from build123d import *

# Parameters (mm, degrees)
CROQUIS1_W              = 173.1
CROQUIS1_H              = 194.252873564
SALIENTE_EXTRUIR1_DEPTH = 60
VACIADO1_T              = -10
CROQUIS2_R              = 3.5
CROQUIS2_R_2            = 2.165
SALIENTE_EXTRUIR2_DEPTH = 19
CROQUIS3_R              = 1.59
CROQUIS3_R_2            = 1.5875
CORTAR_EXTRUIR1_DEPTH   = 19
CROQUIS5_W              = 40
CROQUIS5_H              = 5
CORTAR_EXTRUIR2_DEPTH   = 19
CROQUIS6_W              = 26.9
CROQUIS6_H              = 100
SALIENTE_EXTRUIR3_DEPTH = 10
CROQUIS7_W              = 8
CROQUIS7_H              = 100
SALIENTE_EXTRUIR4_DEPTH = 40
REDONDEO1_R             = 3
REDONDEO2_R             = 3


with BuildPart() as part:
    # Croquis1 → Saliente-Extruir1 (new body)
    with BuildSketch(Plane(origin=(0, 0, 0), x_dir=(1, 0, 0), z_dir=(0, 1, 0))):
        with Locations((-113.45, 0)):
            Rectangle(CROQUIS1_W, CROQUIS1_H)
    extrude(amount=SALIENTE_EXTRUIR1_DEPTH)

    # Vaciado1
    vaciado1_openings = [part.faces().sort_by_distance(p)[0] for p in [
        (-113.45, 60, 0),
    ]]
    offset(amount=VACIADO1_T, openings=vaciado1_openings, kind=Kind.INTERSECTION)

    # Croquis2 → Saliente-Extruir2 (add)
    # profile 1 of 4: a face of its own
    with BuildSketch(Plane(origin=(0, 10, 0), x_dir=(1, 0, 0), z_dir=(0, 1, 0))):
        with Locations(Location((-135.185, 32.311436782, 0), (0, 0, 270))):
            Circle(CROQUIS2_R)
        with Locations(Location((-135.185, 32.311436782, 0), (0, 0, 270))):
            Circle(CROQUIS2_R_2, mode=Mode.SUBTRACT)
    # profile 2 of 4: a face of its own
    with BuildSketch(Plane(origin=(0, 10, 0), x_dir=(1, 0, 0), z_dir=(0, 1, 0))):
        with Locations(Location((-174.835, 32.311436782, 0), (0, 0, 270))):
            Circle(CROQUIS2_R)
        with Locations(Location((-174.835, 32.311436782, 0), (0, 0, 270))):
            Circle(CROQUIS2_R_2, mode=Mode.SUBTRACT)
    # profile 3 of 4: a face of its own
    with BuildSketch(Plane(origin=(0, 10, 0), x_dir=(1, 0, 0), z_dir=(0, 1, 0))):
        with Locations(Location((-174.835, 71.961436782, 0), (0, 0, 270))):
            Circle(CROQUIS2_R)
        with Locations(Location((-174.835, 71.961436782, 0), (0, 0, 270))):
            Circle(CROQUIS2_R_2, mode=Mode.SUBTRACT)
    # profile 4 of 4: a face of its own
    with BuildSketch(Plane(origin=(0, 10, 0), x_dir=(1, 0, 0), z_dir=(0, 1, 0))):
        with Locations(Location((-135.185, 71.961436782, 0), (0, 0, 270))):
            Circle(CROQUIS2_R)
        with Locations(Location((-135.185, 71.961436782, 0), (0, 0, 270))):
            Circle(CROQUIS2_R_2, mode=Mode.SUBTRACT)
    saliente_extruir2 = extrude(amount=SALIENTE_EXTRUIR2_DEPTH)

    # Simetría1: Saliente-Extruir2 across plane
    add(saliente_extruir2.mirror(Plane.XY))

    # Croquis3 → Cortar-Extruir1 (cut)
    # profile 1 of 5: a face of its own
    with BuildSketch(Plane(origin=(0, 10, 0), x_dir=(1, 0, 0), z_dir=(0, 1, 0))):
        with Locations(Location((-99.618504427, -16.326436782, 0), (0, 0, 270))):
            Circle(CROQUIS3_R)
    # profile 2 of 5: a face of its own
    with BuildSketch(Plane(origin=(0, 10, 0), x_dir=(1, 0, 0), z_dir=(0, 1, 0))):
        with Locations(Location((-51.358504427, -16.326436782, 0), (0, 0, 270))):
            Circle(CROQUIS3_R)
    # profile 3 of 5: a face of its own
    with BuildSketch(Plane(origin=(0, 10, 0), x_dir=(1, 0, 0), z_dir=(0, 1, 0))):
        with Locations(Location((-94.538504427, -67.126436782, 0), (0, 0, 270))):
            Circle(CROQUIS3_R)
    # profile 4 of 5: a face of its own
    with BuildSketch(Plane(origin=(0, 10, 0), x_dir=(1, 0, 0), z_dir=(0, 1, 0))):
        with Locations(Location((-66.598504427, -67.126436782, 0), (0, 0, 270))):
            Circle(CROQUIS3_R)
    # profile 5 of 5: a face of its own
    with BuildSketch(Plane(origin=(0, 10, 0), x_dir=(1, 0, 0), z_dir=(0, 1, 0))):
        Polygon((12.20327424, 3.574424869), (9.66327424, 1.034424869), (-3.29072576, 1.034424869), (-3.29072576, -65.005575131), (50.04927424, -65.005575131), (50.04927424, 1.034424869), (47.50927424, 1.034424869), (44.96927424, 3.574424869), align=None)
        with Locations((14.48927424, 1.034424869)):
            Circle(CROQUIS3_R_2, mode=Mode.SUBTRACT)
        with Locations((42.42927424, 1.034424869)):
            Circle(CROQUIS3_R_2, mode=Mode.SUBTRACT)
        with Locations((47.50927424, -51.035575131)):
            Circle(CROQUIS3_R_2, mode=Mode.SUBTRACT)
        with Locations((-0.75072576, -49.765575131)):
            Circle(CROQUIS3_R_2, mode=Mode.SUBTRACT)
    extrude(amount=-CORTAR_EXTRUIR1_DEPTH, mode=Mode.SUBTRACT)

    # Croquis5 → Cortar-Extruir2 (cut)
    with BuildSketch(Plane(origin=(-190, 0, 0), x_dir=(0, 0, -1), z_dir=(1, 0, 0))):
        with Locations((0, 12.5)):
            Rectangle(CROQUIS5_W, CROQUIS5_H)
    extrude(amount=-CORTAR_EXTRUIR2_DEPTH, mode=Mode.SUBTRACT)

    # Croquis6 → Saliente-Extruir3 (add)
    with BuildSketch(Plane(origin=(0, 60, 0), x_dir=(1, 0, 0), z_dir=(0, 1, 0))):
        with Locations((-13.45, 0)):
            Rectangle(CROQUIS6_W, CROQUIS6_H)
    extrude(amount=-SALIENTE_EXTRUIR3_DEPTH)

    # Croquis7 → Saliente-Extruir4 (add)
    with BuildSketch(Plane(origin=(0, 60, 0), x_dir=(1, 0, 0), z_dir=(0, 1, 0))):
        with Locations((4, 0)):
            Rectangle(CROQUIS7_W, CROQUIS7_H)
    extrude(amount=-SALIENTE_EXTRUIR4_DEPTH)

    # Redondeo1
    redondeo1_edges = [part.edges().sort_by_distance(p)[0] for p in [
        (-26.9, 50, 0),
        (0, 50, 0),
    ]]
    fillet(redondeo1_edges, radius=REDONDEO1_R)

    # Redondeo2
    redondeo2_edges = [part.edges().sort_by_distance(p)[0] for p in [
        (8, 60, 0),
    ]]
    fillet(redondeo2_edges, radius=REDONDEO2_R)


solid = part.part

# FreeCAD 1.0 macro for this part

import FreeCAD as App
import Part
import Sketcher


def edges_at(feature, points):
    """Names of the edges that pass closest to the given points."""
    edges = feature.Shape.Edges
    near = lambda p: min(range(len(edges)), key=lambda i: edges[i].distToShape(Part.Vertex(*p))[0])
    return sorted({f"Edge{near(p) + 1}" for p in points})


def faces_at(feature, points):
    """Names of the faces that lie closest to the given points."""
    faces = feature.Shape.Faces
    near = lambda p: min(range(len(faces)), key=lambda i: faces[i].distToShape(Part.Vertex(*p))[0])
    return sorted({f"Face{near(p) + 1}" for p in points})

doc = App.newDocument("Part")
body = doc.addObject("PartDesign::Body", "Body")

# Sketch on XZ plane
sketch1 = body.newObject("Sketcher::SketchObject", "Sketch")
sketch1.AttachmentSupport = (doc.getObject("XZ_Plane"), [""])
sketch1.MapMode = "FlatFace"
sketch1.addGeometry([
    Part.LineSegment(App.Vector(-200, -97, 0), App.Vector(-200, 97, 0)),
    Part.LineSegment(App.Vector(-200, 97, 0), App.Vector(-27, 97, 0)),
    Part.LineSegment(App.Vector(-27, 97, 0), App.Vector(-27, -97, 0)),
    Part.LineSegment(App.Vector(-27, -97, 0), App.Vector(-200, -97, 0)),
], False)
sketch1.addConstraint([
    Sketcher.Constraint("Coincident", 0, 2, 1, 1),
    Sketcher.Constraint("Coincident", 1, 2, 2, 1),
    Sketcher.Constraint("Coincident", 2, 2, 3, 1),
    Sketcher.Constraint("Coincident", 3, 2, 0, 1),
    Sketcher.Constraint("Vertical", 0),
    Sketcher.Constraint("Horizontal", 1),
    Sketcher.Constraint("Vertical", 2),
    Sketcher.Constraint("Horizontal", 3),
    Sketcher.Constraint("DistanceX", 1, 1, 1, 2, 173.1),
    Sketcher.Constraint("DistanceX", 0, 2, -1, 1, 200.0),
    Sketcher.Constraint("DistanceY", 0, 1, 0, 2, 194.252874),
    Sketcher.Constraint("DistanceY", -1, 1, 0, 2, 97.126437),
])
pad1 = body.newObject("PartDesign::Pad", "Pad")
pad1.Profile = sketch1
pad1.Length = 60
pad1.Reversed = True
doc.recompute()

thickness = body.newObject("PartDesign::Thickness", "Thickness")
thickness.Base = (pad1, faces_at(pad1, [(-113.45, 60, 0)]))
thickness.Value = 10
thickness.Reversed = True
thickness.Join = "Intersection"

# Sketch on XZ plane
sketch2 = body.newObject("Sketcher::SketchObject", "Sketch001")
sketch2.AttachmentSupport = (doc.getObject("XZ_Plane"), [""])
sketch2.MapMode = "FlatFace"
sketch2.AttachmentOffset = App.Placement(App.Vector(0, 0, -10), App.Rotation())
sketch2.addGeometry([
    Part.Circle(App.Vector(-135.2, -32.3, 0), App.Vector(0, 0, 1), 3.5),  # 0
    Part.Circle(App.Vector(-135.2, -32.3, 0), App.Vector(0, 0, 1), 2.2),  # 1
    Part.Circle(App.Vector(-174.8, -32.3, 0), App.Vector(0, 0, 1), 3.5),  # 2
    Part.Circle(App.Vector(-174.8, -32.3, 0), App.Vector(0, 0, 1), 2.2),  # 3
    Part.Circle(App.Vector(-174.8, -72, 0), App.Vector(0, 0, 1), 3.5),  # 4
    Part.Circle(App.Vector(-174.8, -72, 0), App.Vector(0, 0, 1), 2.2),  # 5
    Part.Circle(App.Vector(-135.2, -72, 0), App.Vector(0, 0, 1), 3.5),  # 6
    Part.Circle(App.Vector(-135.2, -72, 0), App.Vector(0, 0, 1), 2.2),  # 7
], False)
sketch2.addConstraint([
    Sketcher.Constraint("Coincident", 1, 3, 0, 3),
    Sketcher.Constraint("Coincident", 3, 3, 2, 3),
    Sketcher.Constraint("Coincident", 5, 3, 4, 3),
    Sketcher.Constraint("Coincident", 7, 3, 6, 3),
    Sketcher.Constraint("Equal", 0, 2),
    Sketcher.Constraint("Equal", 1, 3),
    Sketcher.Constraint("Equal", 2, 4),
    Sketcher.Constraint("Equal", 3, 5),
    Sketcher.Constraint("Equal", 4, 6),
    Sketcher.Constraint("Equal", 5, 7),
    Sketcher.Constraint("Horizontal", 1, 3, 2, 3),
    Sketcher.Constraint("Horizontal", 5, 3, 6, 3),
    Sketcher.Constraint("Vertical", 3, 3, 4, 3),
    Sketcher.Constraint("Vertical", 1, 3, 6, 3),
    Sketcher.Constraint("Diameter", 0, 7.0),
    Sketcher.Constraint("Diameter", 1, 4.33),
    Sketcher.Constraint("DistanceX", 2, 3, 0, 3, 39.65),
    Sketcher.Constraint("DistanceY", 4, 3, 2, 3, 39.65),
    Sketcher.Constraint("DistanceX", 0, 3, -1, 1, 135.185),
    Sketcher.Constraint("DistanceY", 0, 3, -1, 1, 32.311437),
])
pad2 = body.newObject("PartDesign::Pad", "Pad001")
pad2.Profile = sketch2
pad2.Length = 19
pad2.Reversed = True
doc.recompute()

mirrored = body.newObject("PartDesign::Mirrored", "Mirrored")
mirrored.Originals = [pad2]
mirrored.MirrorPlane = (doc.getObject("XY_Plane"), [""])
body.Tip = mirrored

# Sketch on XZ plane
sketch3 = body.newObject("Sketcher::SketchObject", "Sketch002")
sketch3.AttachmentSupport = (doc.getObject("XZ_Plane"), [""])
sketch3.MapMode = "FlatFace"
sketch3.AttachmentOffset = App.Placement(App.Vector(0, 0, -10), App.Rotation())
sketch3.addGeometry([
    Part.Circle(App.Vector(-99.6, 16.3, 0), App.Vector(0, 0, 1), 1.6),  # 0
    Part.Circle(App.Vector(-51.4, 16.3, 0), App.Vector(0, 0, 1), 1.6),  # 1
    Part.Circle(App.Vector(-94.5, 67.1, 0), App.Vector(0, 0, 1), 1.6),  # 2
    Part.Circle(App.Vector(-66.6, 67.1, 0), App.Vector(0, 0, 1), 1.6),  # 3
    Part.LineSegment(App.Vector(12.2, -3.6, 0), App.Vector(9.7, -1, 0)),  # 4
    Part.LineSegment(App.Vector(9.7, -1, 0), App.Vector(-3.3, -1, 0)),  # 5
    Part.LineSegment(App.Vector(-3.3, -1, 0), App.Vector(-3.3, 65, 0)),  # 6
    Part.LineSegment(App.Vector(-3.3, 65, 0), App.Vector(50, 65, 0)),  # 7
    Part.LineSegment(App.Vector(50, 65, 0), App.Vector(50, -1, 0)),  # 8
    Part.LineSegment(App.Vector(50, -1, 0), App.Vector(47.5, -1, 0)),  # 9
    Part.LineSegment(App.Vector(47.5, -1, 0), App.Vector(45, -3.6, 0)),  # 10
    Part.LineSegment(App.Vector(45, -3.6, 0), App.Vector(12.2, -3.6, 0)),  # 11
    Part.Circle(App.Vector(-0.8, 49.8, 0), App.Vector(0, 0, 1), 1.6),  # 12
    Part.Circle(App.Vector(47.5, 51, 0), App.Vector(0, 0, 1), 1.6),  # 13
    Part.Circle(App.Vector(14.5, -1, 0), App.Vector(0, 0, 1), 1.6),  # 14
    Part.Circle(App.Vector(42.4, -1, 0), App.Vector(0, 0, 1), 1.6),  # 15
], False)
sketch3.addConstraint([
    Sketcher.Constraint("Coincident", 4, 2, 5, 1),
    Sketcher.Constraint("Coincident", 5, 2, 6, 1),
    Sketcher.Constraint("Coincident", 6, 2, 7, 1),
    Sketcher.Constraint("Coincident", 7, 2, 8, 1),
    Sketcher.Constraint("Coincident", 8, 2, 9, 1),
    Sketcher.Constraint("Coincident", 9, 2, 10, 1),
    Sketcher.Constraint("Coincident", 10, 2, 11, 1),
    Sketcher.Constraint("Coincident", 11, 2, 4, 1),
    Sketcher.Constraint("Horizontal", 5),
    Sketcher.Constraint("Vertical", 6),
    Sketcher.Constraint("Horizontal", 7),
    Sketcher.Constraint("Vertical", 8),
    Sketcher.Constraint("Horizontal", 9),
    Sketcher.Constraint("Horizontal", 11),
    Sketcher.Constraint("Equal", 0, 1),
    Sketcher.Constraint("Equal", 1, 2),
    Sketcher.Constraint("Equal", 2, 3),
    Sketcher.Constraint("Equal", 12, 13),
    Sketcher.Constraint("Equal", 13, 14),
    Sketcher.Constraint("Equal", 14, 15),
    Sketcher.Constraint("Perpendicular", 4, 10),
    Sketcher.Constraint("Horizontal", 0, 3, 1, 3),
    Sketcher.Constraint("Horizontal", 2, 3, 3, 3),
    Sketcher.Constraint("Horizontal", 14, 3, 15, 3),
    Sketcher.Constraint("Horizontal", 15, 3, 4, 2),
    Sketcher.Constraint("Horizontal", 5, 2, 8, 2),
    Sketcher.Constraint("Vertical", 13, 3, 9, 2),
    Sketcher.Constraint("Equal", 4, 10),
    Sketcher.Constraint("Diameter", 0, 3.18),
    Sketcher.Constraint("Diameter", 12, 3.175),
    Sketcher.Constraint("DistanceX", 7, 1, 7, 2, 53.34),
    Sketcher.Constraint("DistanceX", 9, 2, 9, 1, 2.54),
    Sketcher.Constraint("DistanceY", 6, 1, 6, 2, 66.04),
    Sketcher.Constraint("DistanceY", 0, 3, 2, 3, 50.8),
    Sketcher.Constraint("DistanceY", 14, 3, 12, 3, 50.8),
    Sketcher.Constraint("DistanceX", 12, 3, 7, 2, 50.8),
    Sketcher.Constraint("DistanceX", 5, 2, 5, 1, 12.954),
    Sketcher.Constraint("DistanceX", 11, 2, 11, 1, 32.766),
    Sketcher.Constraint("DistanceX", 0, 3, 1, 3, 48.26),
    Sketcher.Constraint("DistanceX", 0, 3, 2, 3, 5.08),
    Sketcher.Constraint("DistanceX", 2, 3, 3, 3, 27.94),
    Sketcher.Constraint("DistanceY", 12, 3, 13, 3, 1.27),
    Sketcher.Constraint("DistanceX", 12, 3, 14, 3, 15.24),
    Sketcher.Constraint("DistanceX", 14, 3, 15, 3, 27.94),
    Sketcher.Constraint("DistanceX", 1, 3, 12, 3, 50.607779),
    Sketcher.Constraint("DistanceY", 1, 3, 12, 3, 33.439138),
    Sketcher.Constraint("DistanceX", 0, 3, -1, 1, 99.618504),
    Sketcher.Constraint("DistanceY", -1, 1, 0, 3, 16.326437),
])
pocket1 = body.newObject("PartDesign::Pocket", "Pocket")
pocket1.Profile = sketch3
pocket1.Length = 19
pocket1.Reversed = True

# Sketch on YZ plane
sketch4 = body.newObject("Sketcher::SketchObject", "Sketch003")
sketch4.AttachmentSupport = (doc.getObject("YZ_Plane"), [""])
sketch4.MapMode = "FlatFace"
sketch4.AttachmentOffset = App.Placement(App.Vector(0, 0, -190), App.Rotation())
sketch4.addGeometry([
    Part.LineSegment(App.Vector(15, 20, 0), App.Vector(10, 20, 0)),
    Part.LineSegment(App.Vector(10, 20, 0), App.Vector(10, -20, 0)),
    Part.LineSegment(App.Vector(10, -20, 0), App.Vector(15, -20, 0)),
    Part.LineSegment(App.Vector(15, -20, 0), App.Vector(15, 20, 0)),
], False)
sketch4.addConstraint([
    Sketcher.Constraint("Coincident", 0, 2, 1, 1),
    Sketcher.Constraint("Coincident", 1, 2, 2, 1),
    Sketcher.Constraint("Coincident", 2, 2, 3, 1),
    Sketcher.Constraint("Coincident", 3, 2, 0, 1),
    Sketcher.Constraint("Horizontal", 0),
    Sketcher.Constraint("Vertical", 1),
    Sketcher.Constraint("Horizontal", 2),
    Sketcher.Constraint("Vertical", 3),
    Sketcher.Constraint("DistanceX", 0, 2, 0, 1, 5.0),
    Sketcher.Constraint("DistanceY", 1, 2, 1, 1, 40.0),
    Sketcher.Constraint("DistanceX", -1, 1, 0, 2, 10.0),
    Sketcher.Constraint("DistanceY", -1, 1, 0, 2, 20.0),
])
pocket2 = body.newObject("PartDesign::Pocket", "Pocket001")
pocket2.Profile = sketch4
pocket2.Length = 19

# Sketch on XZ plane
sketch5 = body.newObject("Sketcher::SketchObject", "Sketch004")
sketch5.AttachmentSupport = (doc.getObject("XZ_Plane"), [""])
sketch5.MapMode = "FlatFace"
sketch5.AttachmentOffset = App.Placement(App.Vector(0, 0, -60), App.Rotation())
sketch5.addGeometry([
    Part.LineSegment(App.Vector(-27, -50, 0), App.Vector(-27, 50, 0)),
    Part.LineSegment(App.Vector(-27, 50, 0), App.Vector(0, 50, 0)),
    Part.LineSegment(App.Vector(0, 50, 0), App.Vector(0, -50, 0)),
    Part.LineSegment(App.Vector(0, -50, 0), App.Vector(-27, -50, 0)),
], False)
sketch5.addConstraint([
    Sketcher.Constraint("Coincident", 0, 2, 1, 1),
    Sketcher.Constraint("Coincident", 1, 2, 2, 1),
    Sketcher.Constraint("Coincident", 2, 2, 3, 1),
    Sketcher.Constraint("Coincident", 3, 2, 0, 1),
    Sketcher.Constraint("Vertical", 0),
    Sketcher.Constraint("Horizontal", 1),
    Sketcher.Constraint("Vertical", 2),
    Sketcher.Constraint("Horizontal", 3),
    Sketcher.Constraint("Symmetric", 1, 2, 2, 2, -1, 1),
    Sketcher.Constraint("DistanceY", 0, 1, 0, 2, 100.0),
    Sketcher.Constraint("DistanceX", 1, 1, 1, 2, 26.9),
])
pad3 = body.newObject("PartDesign::Pad", "Pad002")
pad3.Profile = sketch5
pad3.Length = 10

# Sketch on XZ plane
sketch6 = body.newObject("Sketcher::SketchObject", "Sketch005")
sketch6.AttachmentSupport = (doc.getObject("XZ_Plane"), [""])
sketch6.MapMode = "FlatFace"
sketch6.AttachmentOffset = App.Placement(App.Vector(0, 0, -60), App.Rotation())
sketch6.addGeometry([
    Part.LineSegment(App.Vector(0, -50, 0), App.Vector(0, 50, 0)),
    Part.LineSegment(App.Vector(0, 50, 0), App.Vector(8, 50, 0)),
    Part.LineSegment(App.Vector(8, 50, 0), App.Vector(8, -50, 0)),
    Part.LineSegment(App.Vector(8, -50, 0), App.Vector(0, -50, 0)),
], False)
sketch6.addConstraint([
    Sketcher.Constraint("Coincident", 0, 2, 1, 1),
    Sketcher.Constraint("Coincident", 1, 2, 2, 1),
    Sketcher.Constraint("Coincident", 2, 2, 3, 1),
    Sketcher.Constraint("Coincident", 3, 2, 0, 1),
    Sketcher.Constraint("Vertical", 0),
    Sketcher.Constraint("Horizontal", 1),
    Sketcher.Constraint("Vertical", 2),
    Sketcher.Constraint("Horizontal", 3),
    Sketcher.Constraint("Symmetric", 0, 2, 3, 2, -1, 1),
    Sketcher.Constraint("DistanceX", 1, 1, 1, 2, 8.0),
    Sketcher.Constraint("DistanceY", 0, 1, 0, 2, 100.0),
])
pad4 = body.newObject("PartDesign::Pad", "Pad003")
pad4.Profile = sketch6
pad4.Length = 40
doc.recompute()

fillet = body.newObject("PartDesign::Fillet", "Fillet")
fillet.Base = (pad4, edges_at(pad4, [(-26.9, 50, 0), (0, 50, 0)]))
fillet.Radius = 3
doc.recompute()

fillet2 = body.newObject("PartDesign::Fillet", "Fillet001")
fillet2.Base = (fillet, edges_at(fillet, [(8, 60, 0)]))
fillet2.Radius = 3

doc.recompute()
